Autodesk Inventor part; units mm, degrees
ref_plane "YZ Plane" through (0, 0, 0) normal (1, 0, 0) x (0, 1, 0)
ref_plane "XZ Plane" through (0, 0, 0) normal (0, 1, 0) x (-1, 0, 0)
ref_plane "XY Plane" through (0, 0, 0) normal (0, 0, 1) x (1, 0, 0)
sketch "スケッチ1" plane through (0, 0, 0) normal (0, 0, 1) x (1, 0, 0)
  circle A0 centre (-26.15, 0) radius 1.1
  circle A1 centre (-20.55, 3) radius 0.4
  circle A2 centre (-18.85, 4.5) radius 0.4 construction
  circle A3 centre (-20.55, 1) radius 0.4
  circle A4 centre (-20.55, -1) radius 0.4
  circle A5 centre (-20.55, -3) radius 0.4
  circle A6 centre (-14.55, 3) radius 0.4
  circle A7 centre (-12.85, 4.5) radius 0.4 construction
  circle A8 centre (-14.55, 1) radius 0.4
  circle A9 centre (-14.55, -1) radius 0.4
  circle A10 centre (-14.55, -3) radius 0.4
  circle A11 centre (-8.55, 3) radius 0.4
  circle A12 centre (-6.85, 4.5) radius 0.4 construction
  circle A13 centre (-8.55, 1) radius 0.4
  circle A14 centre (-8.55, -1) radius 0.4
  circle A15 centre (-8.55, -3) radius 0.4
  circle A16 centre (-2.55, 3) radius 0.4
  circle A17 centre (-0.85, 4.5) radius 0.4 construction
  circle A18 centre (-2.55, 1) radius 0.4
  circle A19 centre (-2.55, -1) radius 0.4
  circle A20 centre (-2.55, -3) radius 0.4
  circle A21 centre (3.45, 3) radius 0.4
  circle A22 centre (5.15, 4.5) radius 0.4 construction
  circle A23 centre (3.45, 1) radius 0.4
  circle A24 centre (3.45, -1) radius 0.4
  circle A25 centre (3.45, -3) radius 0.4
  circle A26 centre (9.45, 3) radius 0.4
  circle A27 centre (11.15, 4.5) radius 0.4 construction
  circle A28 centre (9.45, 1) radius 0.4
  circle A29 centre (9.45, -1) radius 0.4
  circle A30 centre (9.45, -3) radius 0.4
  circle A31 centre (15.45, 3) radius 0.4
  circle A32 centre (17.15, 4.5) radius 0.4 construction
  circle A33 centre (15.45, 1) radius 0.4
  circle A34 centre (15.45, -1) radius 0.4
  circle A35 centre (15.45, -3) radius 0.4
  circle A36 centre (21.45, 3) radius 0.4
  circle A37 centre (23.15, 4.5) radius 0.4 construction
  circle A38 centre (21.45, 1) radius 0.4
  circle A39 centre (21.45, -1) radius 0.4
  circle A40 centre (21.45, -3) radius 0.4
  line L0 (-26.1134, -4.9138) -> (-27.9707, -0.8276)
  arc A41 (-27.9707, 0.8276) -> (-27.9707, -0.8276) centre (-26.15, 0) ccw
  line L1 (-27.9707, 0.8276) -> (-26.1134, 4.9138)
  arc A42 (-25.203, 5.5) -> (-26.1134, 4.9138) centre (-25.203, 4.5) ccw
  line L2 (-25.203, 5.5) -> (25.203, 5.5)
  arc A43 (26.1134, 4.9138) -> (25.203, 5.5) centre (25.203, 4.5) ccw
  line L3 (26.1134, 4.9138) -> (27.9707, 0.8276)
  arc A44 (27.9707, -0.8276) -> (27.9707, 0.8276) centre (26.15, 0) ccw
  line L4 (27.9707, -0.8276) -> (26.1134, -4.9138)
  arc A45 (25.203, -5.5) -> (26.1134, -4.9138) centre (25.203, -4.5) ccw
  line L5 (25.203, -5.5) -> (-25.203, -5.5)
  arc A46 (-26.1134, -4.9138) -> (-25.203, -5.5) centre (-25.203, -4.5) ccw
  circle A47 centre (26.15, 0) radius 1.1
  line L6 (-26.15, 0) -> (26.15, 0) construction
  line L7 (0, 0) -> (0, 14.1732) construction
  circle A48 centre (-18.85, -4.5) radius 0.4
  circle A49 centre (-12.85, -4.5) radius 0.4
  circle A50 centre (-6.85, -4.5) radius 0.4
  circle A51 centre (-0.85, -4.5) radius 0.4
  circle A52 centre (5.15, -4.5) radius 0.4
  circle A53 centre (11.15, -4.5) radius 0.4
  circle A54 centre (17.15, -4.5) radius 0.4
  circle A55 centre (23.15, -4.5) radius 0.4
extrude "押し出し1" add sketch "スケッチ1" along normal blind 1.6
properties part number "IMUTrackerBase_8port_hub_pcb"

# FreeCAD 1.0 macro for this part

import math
import FreeCAD as App
import Part
import Sketcher

V = App.Vector
Q = App.Units.Quantity

doc = App.newDocument("Part")
body = doc.addObject("PartDesign::Body", "Body")

# Sketch on XY plane
sketch1 = body.newObject("Sketcher::SketchObject", "Sketch")
sketch1.AttachmentSupport = (doc.getObject("XY_Plane"), [""])
sketch1.MapMode = "FlatFace"
sketch1.addGeometry([
    Part.LineSegment(V(-27.97, -0.83, 0), V(-26.11, -4.91, 0)),  # 0
    Part.ArcOfCircle(Part.Circle(V(-25.2, -4.5, 0), V(0, 0, 1), 1), math.radians(-156), math.radians(-90)),  # 1
    Part.LineSegment(V(-25.2, -5.5, 0), V(25.2, -5.5, 0)),  # 2
    Part.ArcOfCircle(Part.Circle(V(25.2, -4.5, 0), V(0, 0, 1), 1), math.radians(-90), math.radians(-24)),  # 3
    Part.LineSegment(V(26.11, -4.91, 0), V(27.97, -0.83, 0)),  # 4
    Part.ArcOfCircle(Part.Circle(V(26.15, 0, 0), V(0, 0, 1), 2), math.radians(-24), math.radians(24)),  # 5
    Part.LineSegment(V(27.97, 0.83, 0), V(26.11, 4.91, 0)),  # 6
    Part.ArcOfCircle(Part.Circle(V(25.2, 4.5, 0), V(0, 0, 1), 1), math.radians(24), math.radians(90)),  # 7
    Part.LineSegment(V(25.2, 5.5, 0), V(-25.2, 5.5, 0)),  # 8
    Part.ArcOfCircle(Part.Circle(V(-25.2, 4.5, 0), V(0, 0, 1), 1), math.radians(90), math.radians(156)),  # 9
    Part.LineSegment(V(-26.11, 4.91, 0), V(-27.97, 0.83, 0)),  # 10
    Part.ArcOfCircle(Part.Circle(V(-26.15, 0, 0), V(0, 0, 1), 2), math.radians(156), math.radians(204)),  # 11
    Part.Circle(V(-18.85, -4.5, 0), V(0, 0, 1), 0.4),  # 12
    Part.Circle(V(-20.55, -3, 0), V(0, 0, 1), 0.4),  # 13
    Part.Circle(V(-14.55, -3, 0), V(0, 0, 1), 0.4),  # 14
    Part.Circle(V(-12.85, -4.5, 0), V(0, 0, 1), 0.4),  # 15
    Part.Circle(V(-6.85, -4.5, 0), V(0, 0, 1), 0.4),  # 16
    Part.Circle(V(-0.85, -4.5, 0), V(0, 0, 1), 0.4),  # 17
    Part.Circle(V(-8.55, -3, 0), V(0, 0, 1), 0.4),  # 18
    Part.Circle(V(-2.55, -3, 0), V(0, 0, 1), 0.4),  # 19
    Part.Circle(V(-20.55, -1, 0), V(0, 0, 1), 0.4),  # 20
    Part.Circle(V(-14.55, -1, 0), V(0, 0, 1), 0.4),  # 21
    Part.Circle(V(-8.55, -1, 0), V(0, 0, 1), 0.4),  # 22
    Part.Circle(V(-2.55, -1, 0), V(0, 0, 1), 0.4),  # 23
    Part.Circle(V(5.15, -4.5, 0), V(0, 0, 1), 0.4),  # 24
    Part.Circle(V(11.15, -4.5, 0), V(0, 0, 1), 0.4),  # 25
    Part.Circle(V(3.45, -3, 0), V(0, 0, 1), 0.4),  # 26
    Part.Circle(V(9.45, -3, 0), V(0, 0, 1), 0.4),  # 27
    Part.Circle(V(17.15, -4.5, 0), V(0, 0, 1), 0.4),  # 28
    Part.Circle(V(23.15, -4.5, 0), V(0, 0, 1), 0.4),  # 29
    Part.Circle(V(15.45, -3, 0), V(0, 0, 1), 0.4),  # 30
    Part.Circle(V(21.45, -3, 0), V(0, 0, 1), 0.4),  # 31
    Part.Circle(V(3.45, -1, 0), V(0, 0, 1), 0.4),  # 32
    Part.Circle(V(9.45, -1, 0), V(0, 0, 1), 0.4),  # 33
    Part.Circle(V(15.45, -1, 0), V(0, 0, 1), 0.4),  # 34
    Part.Circle(V(21.45, -1, 0), V(0, 0, 1), 0.4),  # 35
    Part.Circle(V(-26.15, 0, 0), V(0, 0, 1), 1.1),  # 36
    Part.Circle(V(-20.55, 1, 0), V(0, 0, 1), 0.4),  # 37
    Part.Circle(V(-14.55, 1, 0), V(0, 0, 1), 0.4),  # 38
    Part.Circle(V(-8.55, 1, 0), V(0, 0, 1), 0.4),  # 39
    Part.Circle(V(-2.55, 1, 0), V(0, 0, 1), 0.4),  # 40
    Part.Circle(V(-20.55, 3, 0), V(0, 0, 1), 0.4),  # 41
    Part.Circle(V(-14.55, 3, 0), V(0, 0, 1), 0.4),  # 42
    Part.Circle(V(-8.55, 3, 0), V(0, 0, 1), 0.4),  # 43
    Part.Circle(V(-2.55, 3, 0), V(0, 0, 1), 0.4),  # 44
    Part.Circle(V(3.45, 1, 0), V(0, 0, 1), 0.4),  # 45
    Part.Circle(V(9.45, 1, 0), V(0, 0, 1), 0.4),  # 46
    Part.Circle(V(15.45, 1, 0), V(0, 0, 1), 0.4),  # 47
    Part.Circle(V(26.15, 0, 0), V(0, 0, 1), 1.1),  # 48
    Part.Circle(V(21.45, 1, 0), V(0, 0, 1), 0.4),  # 49
    Part.Circle(V(3.45, 3, 0), V(0, 0, 1), 0.4),  # 50
    Part.Circle(V(9.45, 3, 0), V(0, 0, 1), 0.4),  # 51
    Part.Circle(V(15.45, 3, 0), V(0, 0, 1), 0.4),  # 52
    Part.Circle(V(21.45, 3, 0), V(0, 0, 1), 0.4),  # 53
], False)
sketch1.addConstraint([
    Sketcher.Constraint("Tangent", 0, 2, 1, 1),
    Sketcher.Constraint("Tangent", 1, 2, 2, 1),
    Sketcher.Constraint("Tangent", 2, 2, 3, 1),
    Sketcher.Constraint("Tangent", 3, 2, 4, 1),
    Sketcher.Constraint("Tangent", 4, 2, 5, 1),
    Sketcher.Constraint("Tangent", 5, 2, 6, 1),
    Sketcher.Constraint("Tangent", 6, 2, 7, 1),
    Sketcher.Constraint("Tangent", 7, 2, 8, 1),
    Sketcher.Constraint("Tangent", 8, 2, 9, 1),
    Sketcher.Constraint("Tangent", 9, 2, 10, 1),
    Sketcher.Constraint("Tangent", 10, 2, 11, 1),
    Sketcher.Constraint("Tangent", 11, 2, 0, 1),
    Sketcher.Constraint("Horizontal", 2),
    Sketcher.Constraint("Horizontal", 8),
    Sketcher.Constraint("Coincident", 36, 3, 11, 3),
    Sketcher.Constraint("Coincident", 48, 3, 5, 3),
    Sketcher.Constraint("Equal", 1, 3),
    Sketcher.Constraint("Equal", 3, 7),
    Sketcher.Constraint("Equal", 7, 9),
    Sketcher.Constraint("Equal", 5, 11),
    Sketcher.Constraint("Equal", 12, 13),
    Sketcher.Constraint("Equal", 13, 14),
    Sketcher.Constraint("Equal", 14, 15),
    Sketcher.Constraint("Equal", 15, 16),
    Sketcher.Constraint("Equal", 16, 17),
    Sketcher.Constraint("Equal", 17, 18),
    Sketcher.Constraint("Equal", 18, 19),
    Sketcher.Constraint("Equal", 19, 20),
    Sketcher.Constraint("Equal", 20, 21),
    Sketcher.Constraint("Equal", 21, 22),
    Sketcher.Constraint("Equal", 22, 23),
    Sketcher.Constraint("Equal", 23, 24),
    Sketcher.Constraint("Equal", 24, 25),
    Sketcher.Constraint("Equal", 25, 26),
    Sketcher.Constraint("Equal", 26, 27),
    Sketcher.Constraint("Equal", 27, 28),
    Sketcher.Constraint("Equal", 28, 29),
    Sketcher.Constraint("Equal", 29, 30),
    Sketcher.Constraint("Equal", 30, 31),
    Sketcher.Constraint("Equal", 31, 32),
    Sketcher.Constraint("Equal", 32, 33),
    Sketcher.Constraint("Equal", 33, 34),
    Sketcher.Constraint("Equal", 34, 35),
    Sketcher.Constraint("Equal", 35, 37),
    Sketcher.Constraint("Equal", 37, 38),
    Sketcher.Constraint("Equal", 38, 39),
    Sketcher.Constraint("Equal", 39, 40),
    Sketcher.Constraint("Equal", 40, 41),
    Sketcher.Constraint("Equal", 41, 42),
    Sketcher.Constraint("Equal", 42, 43),
    Sketcher.Constraint("Equal", 43, 44),
    Sketcher.Constraint("Equal", 44, 45),
    Sketcher.Constraint("Equal", 45, 46),
    Sketcher.Constraint("Equal", 46, 47),
    Sketcher.Constraint("Equal", 36, 48),
    Sketcher.Constraint("Equal", 47, 49),
    Sketcher.Constraint("Equal", 49, 50),
    Sketcher.Constraint("Equal", 50, 51),
    Sketcher.Constraint("Equal", 51, 52),
    Sketcher.Constraint("Equal", 52, 53),
    Sketcher.Constraint("Symmetric", 1, 3, 7, 3, -1, 1),
    Sketcher.Constraint("Symmetric", 5, 3, 11, 3, -1, 1),
    Sketcher.Constraint("Symmetric", 0, 2, 3, 2, -2),
    Sketcher.Constraint("Symmetric", 20, 3, 37, 3, -1),
    Sketcher.Constraint("Symmetric", 21, 3, 38, 3, -1),
    Sketcher.Constraint("Symmetric", 22, 3, 39, 3, -1),
    Sketcher.Constraint("Symmetric", 23, 3, 40, 3, -1),
    Sketcher.Constraint("Symmetric", 13, 3, 41, 3, -1),
    Sketcher.Constraint("Symmetric", 14, 3, 42, 3, -1),
    Sketcher.Constraint("Symmetric", 18, 3, 43, 3, -1),
    Sketcher.Constraint("Symmetric", 19, 3, 44, 3, -1),
    Sketcher.Constraint("Symmetric", 32, 3, 45, 3, -1),
    Sketcher.Constraint("Symmetric", 33, 3, 46, 3, -1),
    Sketcher.Constraint("Symmetric", 34, 3, 47, 3, -1),
    Sketcher.Constraint("Symmetric", 35, 3, 49, 3, -1),
    Sketcher.Constraint("Symmetric", 26, 3, 50, 3, -1),
    Sketcher.Constraint("Symmetric", 27, 3, 51, 3, -1),
    Sketcher.Constraint("Symmetric", 30, 3, 52, 3, -1),
    Sketcher.Constraint("Symmetric", 31, 3, 53, 3, -1),
    Sketcher.Constraint("Parallel", 4, 10),
    Sketcher.Constraint("Horizontal", 3, 3, 12, 3),
    Sketcher.Constraint("Horizontal", 13, 3, 14, 3),
    Sketcher.Constraint("Horizontal", 12, 3, 15, 3),
    Sketcher.Constraint("Horizontal", 15, 3, 16, 3),
    Sketcher.Constraint("Horizontal", 16, 3, 17, 3),
    Sketcher.Constraint("Horizontal", 14, 3, 18, 3),
    Sketcher.Constraint("Horizontal", 18, 3, 19, 3),
    Sketcher.Constraint("Horizontal", 20, 3, 21, 3),
    Sketcher.Constraint("Horizontal", 21, 3, 22, 3),
    Sketcher.Constraint("Horizontal", 22, 3, 23, 3),
    Sketcher.Constraint("Horizontal", 17, 3, 24, 3),
    Sketcher.Constraint("Horizontal", 24, 3, 25, 3),
    Sketcher.Constraint("Horizontal", 19, 3, 26, 3),
    Sketcher.Constraint("Horizontal", 26, 3, 27, 3),
    Sketcher.Constraint("Horizontal", 25, 3, 28, 3),
    Sketcher.Constraint("Horizontal", 28, 3, 29, 3),
    Sketcher.Constraint("Horizontal", 27, 3, 30, 3),
    Sketcher.Constraint("Horizontal", 30, 3, 31, 3),
    Sketcher.Constraint("Horizontal", 23, 3, 32, 3),
    Sketcher.Constraint("Horizontal", 32, 3, 33, 3),
    Sketcher.Constraint("Horizontal", 33, 3, 34, 3),
    Sketcher.Constraint("Horizontal", 34, 3, 35, 3),
    Sketcher.Constraint("Vertical", 13, 3, 20, 3),
    Sketcher.Constraint("Vertical", 14, 3, 21, 3),
    Sketcher.Constraint("Vertical", 18, 3, 22, 3),
    Sketcher.Constraint("Vertical", 19, 3, 23, 3),
    Sketcher.Constraint("Vertical", 26, 3, 32, 3),
    Sketcher.Constraint("Vertical", 27, 3, 33, 3),
    Sketcher.Constraint("Vertical", 30, 3, 34, 3),
    Sketcher.Constraint("Vertical", 31, 3, 35, 3),
    Sketcher.Constraint("Radius", 1, Q("1 mm")),
    Sketcher.Constraint("Radius", 5, Q("2 mm")),
    Sketcher.Constraint("Diameter", 12, Q("0.8 mm")),
    Sketcher.Constraint("Diameter", 36, Q("2.2 mm")),
    Sketcher.Constraint("DistanceY", 13, 3, -1, 1, Q("3 mm")),
    Sketcher.Constraint("DistanceY", 20, 3, -1, 1, Q("1 mm")),
    Sketcher.Constraint("DistanceY", 3, 3, 7, 3, Q("9 mm")),
    Sketcher.Constraint("DistanceX", 13, 3, 14, 3, Q("6 mm")),
    Sketcher.Constraint("DistanceX", 12, 3, 15, 3, Q("6 mm")),
    Sketcher.Constraint("DistanceX", 15, 3, 16, 3, Q("6 mm")),
    Sketcher.Constraint("DistanceX", 16, 3, 17, 3, Q("6 mm")),
    Sketcher.Constraint("DistanceX", 14, 3, 18, 3, Q("6 mm")),
    Sketcher.Constraint("DistanceX", 18, 3, 19, 3, Q("6 mm")),
    Sketcher.Constraint("DistanceX", 17, 3, 24, 3, Q("6 mm")),
    Sketcher.Constraint("DistanceX", 24, 3, 25, 3, Q("6 mm")),
    Sketcher.Constraint("DistanceX", 19, 3, 26, 3, Q("6 mm")),
    Sketcher.Constraint("DistanceX", 26, 3, 27, 3, Q("6 mm")),
    Sketcher.Constraint("DistanceX", 25, 3, 28, 3, Q("6 mm")),
    Sketcher.Constraint("DistanceX", 28, 3, 5, 3, Q("9 mm")),
    Sketcher.Constraint("DistanceX", 29, 3, 5, 3, Q("3 mm")),
    Sketcher.Constraint("DistanceX", 27, 3, 30, 3, Q("6 mm")),
    Sketcher.Constraint("DistanceX", 30, 3, 31, 3, Q("6 mm")),
    Sketcher.Constraint("DistanceX", 11, 3, 5, 3, Q("52.3 mm")),
    Sketcher.Constraint("DistanceX", 13, 3, 12, 3, Q("1.7 mm")),
    Sketcher.Constraint("DistanceX", 2, 1, 2, 2, Q("50.406 mm")),
])
pad1 = body.newObject("PartDesign::Pad", "Pad")
pad1.Profile = sketch1
pad1.Length = 1.6

doc.recompute()
